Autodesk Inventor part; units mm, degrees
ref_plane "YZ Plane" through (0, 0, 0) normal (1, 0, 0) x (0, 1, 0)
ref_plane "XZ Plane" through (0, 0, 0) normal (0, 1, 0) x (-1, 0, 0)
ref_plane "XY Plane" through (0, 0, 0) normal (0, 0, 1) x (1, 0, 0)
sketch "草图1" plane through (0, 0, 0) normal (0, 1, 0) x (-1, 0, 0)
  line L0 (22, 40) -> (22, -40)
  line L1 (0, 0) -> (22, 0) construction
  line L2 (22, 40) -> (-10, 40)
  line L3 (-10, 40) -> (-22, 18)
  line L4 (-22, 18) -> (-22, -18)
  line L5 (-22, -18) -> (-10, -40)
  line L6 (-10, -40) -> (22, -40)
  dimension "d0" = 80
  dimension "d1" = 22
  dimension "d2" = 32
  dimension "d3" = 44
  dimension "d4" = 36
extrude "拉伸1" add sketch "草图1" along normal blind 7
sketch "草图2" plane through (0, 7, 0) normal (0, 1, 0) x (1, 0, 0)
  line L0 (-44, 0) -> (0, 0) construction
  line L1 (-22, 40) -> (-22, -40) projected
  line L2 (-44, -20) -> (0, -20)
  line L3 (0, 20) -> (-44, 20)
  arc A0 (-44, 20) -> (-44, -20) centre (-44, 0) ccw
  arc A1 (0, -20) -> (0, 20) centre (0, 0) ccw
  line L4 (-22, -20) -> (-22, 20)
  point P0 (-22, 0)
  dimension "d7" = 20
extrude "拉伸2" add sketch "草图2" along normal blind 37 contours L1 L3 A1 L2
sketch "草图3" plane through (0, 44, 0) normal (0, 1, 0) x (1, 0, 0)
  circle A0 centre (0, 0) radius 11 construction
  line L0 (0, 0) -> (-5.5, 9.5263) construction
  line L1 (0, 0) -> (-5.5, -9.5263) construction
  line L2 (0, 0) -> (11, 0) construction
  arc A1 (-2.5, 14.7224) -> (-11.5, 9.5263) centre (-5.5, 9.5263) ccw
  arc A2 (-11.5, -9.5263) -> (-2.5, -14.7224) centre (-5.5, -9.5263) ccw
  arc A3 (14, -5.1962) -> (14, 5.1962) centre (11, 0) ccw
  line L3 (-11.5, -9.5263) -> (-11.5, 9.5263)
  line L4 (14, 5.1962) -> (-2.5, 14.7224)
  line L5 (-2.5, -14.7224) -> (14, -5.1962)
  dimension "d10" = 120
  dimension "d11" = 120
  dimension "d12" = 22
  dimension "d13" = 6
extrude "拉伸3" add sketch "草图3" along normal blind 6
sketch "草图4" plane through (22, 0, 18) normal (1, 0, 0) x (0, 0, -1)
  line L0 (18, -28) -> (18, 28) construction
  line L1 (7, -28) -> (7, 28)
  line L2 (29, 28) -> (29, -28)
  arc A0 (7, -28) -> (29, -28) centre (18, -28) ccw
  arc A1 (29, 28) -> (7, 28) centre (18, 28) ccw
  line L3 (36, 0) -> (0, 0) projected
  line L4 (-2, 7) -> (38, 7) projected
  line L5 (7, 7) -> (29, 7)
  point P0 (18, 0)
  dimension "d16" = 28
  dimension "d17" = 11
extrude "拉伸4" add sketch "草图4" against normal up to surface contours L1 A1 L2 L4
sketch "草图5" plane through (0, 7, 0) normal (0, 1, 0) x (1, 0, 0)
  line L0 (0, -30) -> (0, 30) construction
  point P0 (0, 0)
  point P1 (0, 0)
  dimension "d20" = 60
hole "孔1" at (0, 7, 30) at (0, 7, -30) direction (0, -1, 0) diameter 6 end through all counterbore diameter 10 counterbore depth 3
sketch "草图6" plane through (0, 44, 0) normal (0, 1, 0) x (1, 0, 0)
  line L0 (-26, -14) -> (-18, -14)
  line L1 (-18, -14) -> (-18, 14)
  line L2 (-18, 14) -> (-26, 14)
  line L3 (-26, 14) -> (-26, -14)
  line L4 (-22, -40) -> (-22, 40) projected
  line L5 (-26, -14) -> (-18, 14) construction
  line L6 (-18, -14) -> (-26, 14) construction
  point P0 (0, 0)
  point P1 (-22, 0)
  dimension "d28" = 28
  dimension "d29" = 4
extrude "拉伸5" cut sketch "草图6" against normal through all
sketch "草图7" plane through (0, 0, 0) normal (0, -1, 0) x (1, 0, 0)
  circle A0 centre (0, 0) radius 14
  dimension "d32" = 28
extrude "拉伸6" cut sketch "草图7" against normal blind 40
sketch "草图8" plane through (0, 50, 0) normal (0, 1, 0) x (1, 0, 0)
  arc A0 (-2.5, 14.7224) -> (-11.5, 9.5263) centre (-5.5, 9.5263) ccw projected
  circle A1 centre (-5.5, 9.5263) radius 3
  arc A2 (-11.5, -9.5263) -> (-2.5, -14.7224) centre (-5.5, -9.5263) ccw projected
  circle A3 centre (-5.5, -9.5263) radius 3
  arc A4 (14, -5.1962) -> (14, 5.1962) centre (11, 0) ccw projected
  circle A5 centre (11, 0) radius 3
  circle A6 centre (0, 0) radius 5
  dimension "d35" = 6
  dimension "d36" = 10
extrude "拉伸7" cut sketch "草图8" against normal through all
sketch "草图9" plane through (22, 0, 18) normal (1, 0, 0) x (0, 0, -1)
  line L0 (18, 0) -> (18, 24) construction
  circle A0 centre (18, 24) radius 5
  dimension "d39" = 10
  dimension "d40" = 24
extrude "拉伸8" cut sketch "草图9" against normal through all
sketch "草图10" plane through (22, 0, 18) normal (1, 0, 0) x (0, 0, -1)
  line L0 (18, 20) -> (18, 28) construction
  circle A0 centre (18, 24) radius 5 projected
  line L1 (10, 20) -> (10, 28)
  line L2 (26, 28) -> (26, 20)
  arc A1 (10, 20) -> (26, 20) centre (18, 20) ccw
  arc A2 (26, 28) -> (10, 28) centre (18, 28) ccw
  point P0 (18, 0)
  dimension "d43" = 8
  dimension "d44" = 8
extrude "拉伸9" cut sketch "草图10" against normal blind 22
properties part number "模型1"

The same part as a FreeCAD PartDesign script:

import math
import FreeCAD as App
import Part
import Sketcher
Q = App.Units.Quantity

doc = App.newDocument("Part")
body = doc.addObject("PartDesign::Body", "Body")

# Sketch on XZ plane
sketch1 = doc.addObject("Sketcher::SketchObject", "Sketch")
body.addObject(sketch1)
sketch1.AttachmentSupport = (doc.XZ_Plane, [""])
sketch1.MapMode = "FlatFace"
sketch1.addGeometry([
    Part.LineSegment(App.Vector(-22, -40, 0), App.Vector(-22, 40, 0)),  # 0
    Part.LineSegment(App.Vector(-22, 40, 0), App.Vector(10, 40, 0)),  # 1
    Part.LineSegment(App.Vector(10, 40, 0), App.Vector(22, 18, 0)),  # 2
    Part.LineSegment(App.Vector(22, 18, 0), App.Vector(22, -18, 0)),  # 3
    Part.LineSegment(App.Vector(22, -18, 0), App.Vector(10, -40, 0)),  # 4
    Part.LineSegment(App.Vector(10, -40, 0), App.Vector(-22, -40, 0)),  # 5
], False)
sketch1.addConstraint([
    Sketcher.Constraint("Coincident", 0, 2, 1, 1),
    Sketcher.Constraint("Coincident", 1, 2, 2, 1),
    Sketcher.Constraint("Coincident", 2, 2, 3, 1),
    Sketcher.Constraint("Coincident", 3, 2, 4, 1),
    Sketcher.Constraint("Coincident", 4, 2, 5, 1),
    Sketcher.Constraint("Coincident", 5, 2, 0, 1),
    Sketcher.Constraint("Vertical", 0),
    Sketcher.Constraint("Horizontal", 1),
    Sketcher.Constraint("Vertical", 3),
    Sketcher.Constraint("Horizontal", 5),
    Sketcher.Constraint("Symmetric", 1, 2, 4, 2, -1),
    Sketcher.Constraint("Equal", 2, 4),
    Sketcher.Constraint("DistanceX", 1, 1, 1, 2, 32.0),
    Sketcher.Constraint("DistanceY", 0, 1, 0, 2, 80.0),
    Sketcher.Constraint("DistanceY", 3, 2, 3, 1, 36.0),
    Sketcher.Constraint("DistanceX", 0, 2, -1, 1, 22.0),
    Sketcher.Constraint("DistanceX", -1, 1, 2, 2, 22.0),
])
pad1 = doc.addObject("PartDesign::Pad", "Pad")
body.addObject(pad1)
pad1.Profile = sketch1
pad1.Length = 7
pad1.Reversed = True

# Sketch on XZ plane
sketch2 = doc.addObject("Sketcher::SketchObject", "Sketch001")
body.addObject(sketch2)
sketch2.AttachmentSupport = (doc.XZ_Plane, [""])
sketch2.MapMode = "FlatFace"
sketch2.AttachmentOffset = App.Placement(App.Vector(0, 0, -7), App.Rotation())
sketch2.addGeometry([
    Part.LineSegment(App.Vector(-22, -20, 0), App.Vector(-22, 20, 0)),
    Part.LineSegment(App.Vector(-22, 20, 0), App.Vector(0, 20, 0)),
    Part.ArcOfCircle(Part.Circle(App.Vector(0, 0, 0), App.Vector(0, 0, 1), 20), math.radians(-90), math.radians(90)),
    Part.LineSegment(App.Vector(0, -20, 0), App.Vector(-22, -20, 0)),
], False)
sketch2.addConstraint([
    Sketcher.Constraint("Coincident", 0, 2, 1, 1),
    Sketcher.Constraint("Tangent", 1, 2, 2, 2),
    Sketcher.Constraint("Tangent", 2, 1, 3, 1),
    Sketcher.Constraint("Coincident", 3, 2, 0, 1),
    Sketcher.Constraint("Vertical", 0),
    Sketcher.Constraint("Horizontal", 1),
    Sketcher.Constraint("Horizontal", 3),
    Sketcher.Constraint("Coincident", 2, 3, -1, 1),
    Sketcher.Constraint("Radius", 2, 20.0),
    Sketcher.Constraint("DistanceX", 1, 1, 1, 2, 22.0),
])
pad2 = doc.addObject("PartDesign::Pad", "Pad001")
body.addObject(pad2)
pad2.Profile = sketch2
pad2.Length = 37
pad2.Reversed = True

# Sketch on XZ plane
sketch3 = doc.addObject("Sketcher::SketchObject", "Sketch002")
body.addObject(sketch3)
sketch3.AttachmentSupport = (doc.XZ_Plane, [""])
sketch3.MapMode = "FlatFace"
sketch3.AttachmentOffset = App.Placement(App.Vector(0, 0, -44), App.Rotation())
sketch3.addGeometry([
    Part.LineSegment(App.Vector(14, -5, 0), App.Vector(-2, -15, 0)),  # 0
    Part.ArcOfCircle(Part.Circle(App.Vector(-6, -10, 0), App.Vector(0, 0, 1), 6), math.radians(180), math.radians(300)),  # 1
    Part.LineSegment(App.Vector(-12, -10, 0), App.Vector(-12, 10, 0)),  # 2
    Part.ArcOfCircle(Part.Circle(App.Vector(-6, 10, 0), App.Vector(0, 0, 1), 6), math.radians(60), math.radians(180)),  # 3
    Part.LineSegment(App.Vector(-2, 15, 0), App.Vector(14, 5, 0)),  # 4
    Part.ArcOfCircle(Part.Circle(App.Vector(11, 0, 0), App.Vector(0, 0, 1), 6), math.radians(-60), math.radians(60)),  # 5
], False)
sketch3.addConstraint([
    Sketcher.Constraint("Tangent", 0, 2, 1, 2),
    Sketcher.Constraint("Tangent", 1, 1, 2, 1),
    Sketcher.Constraint("Tangent", 2, 2, 3, 2),
    Sketcher.Constraint("Tangent", 3, 1, 4, 1),
    Sketcher.Constraint("Tangent", 4, 2, 5, 2),
    Sketcher.Constraint("Tangent", 5, 1, 0, 1),
    Sketcher.Constraint("Vertical", 2),
    Sketcher.Constraint("Equal", 1, 3),
    Sketcher.Constraint("Equal", 3, 5),
    Sketcher.Constraint("Symmetric", 0, 2, 3, 1, -1),
    Sketcher.Constraint("Radius", 1, 6.0),
    Sketcher.Constraint("Angle", 0, Q("-150.0002 deg")),
    Sketcher.Constraint("DistanceX", -1, 1, 5, 3, 11.0),
    Sketcher.Constraint("DistanceX", 1, 3, -1, 1, 5.5),
])
pad3 = doc.addObject("PartDesign::Pad", "Pad002")
body.addObject(pad3)
pad3.Profile = sketch3
pad3.Length = 6
pad3.Reversed = True

# Sketch on YZ plane
sketch4 = doc.addObject("Sketcher::SketchObject", "Sketch003")
body.addObject(sketch4)
sketch4.AttachmentSupport = (doc.YZ_Plane, [""])
sketch4.MapMode = "FlatFace"
sketch4.AttachmentOffset = App.Placement(App.Vector(0, 0, 22), App.Rotation())
sketch4.addGeometry([
    Part.LineSegment(App.Vector(28, 11, 0), App.Vector(7, 11, 0)),
    Part.LineSegment(App.Vector(7, 11, 0), App.Vector(7, -11, 0)),
    Part.LineSegment(App.Vector(7, -11, 0), App.Vector(28, -11, 0)),
    Part.ArcOfCircle(Part.Circle(App.Vector(28, 0, 0), App.Vector(0, 0, 1), 11), math.radians(-90), math.radians(90)),
], False)
sketch4.addConstraint([
    Sketcher.Constraint("Coincident", 0, 2, 1, 1),
    Sketcher.Constraint("Coincident", 1, 2, 2, 1),
    Sketcher.Constraint("Tangent", 2, 2, 3, 1),
    Sketcher.Constraint("Tangent", 3, 2, 0, 1),
    Sketcher.Constraint("Horizontal", 0),
    Sketcher.Constraint("Vertical", 1),
    Sketcher.Constraint("Horizontal", 2),
    Sketcher.Constraint("PointOnObject", 3, 3, -1),
    Sketcher.Constraint("Radius", 3, 11.0),
    Sketcher.Constraint("DistanceX", -1, 1, 3, 3, 28.0),
    Sketcher.Constraint("DistanceX", 0, 2, 0, 1, 21.0),
])
pad4 = doc.addObject("PartDesign::Pad", "Pad003")
body.addObject(pad4)
pad4.Profile = sketch4
pad4.Type = "UpToFirst"
pad4.Reversed = True

# Sketch on XZ plane
sketch5 = doc.addObject("Sketcher::SketchObject", "Sketch004")
body.addObject(sketch5)
sketch5.AttachmentSupport = (doc.XZ_Plane, [""])
sketch5.MapMode = "FlatFace"
sketch5.AttachmentOffset = App.Placement(App.Vector(0, 0, -7), App.Rotation())
sketch5.addGeometry([
    Part.Circle(App.Vector(0, 30, 0), App.Vector(0, 0, 1), 3),
    Part.Circle(App.Vector(0, -30, 0), App.Vector(0, 0, 1), 3),
], False)
sketch5.addConstraint([
    Sketcher.Constraint("Equal", 0, 1),
    Sketcher.Constraint("Symmetric", 0, 3, 1, 3, -1, 1),
    Sketcher.Constraint("PointOnObject", 0, 3, -2),
    Sketcher.Constraint("Diameter", 0, 6.0),
    Sketcher.Constraint("DistanceY", -1, 1, 0, 3, 30.0),
])
doc.recompute()
hole = doc.addObject("PartDesign::Hole", "Hole")
body.addObject(hole)
hole.Profile = sketch5
hole.ThreadType = "None"
hole.Diameter = 6
hole.DepthType = "ThroughAll"
hole.HoleCutType = "Counterbore"
hole.HoleCutDiameter = 10
hole.HoleCutDepth = 3
hole.Reversed = True

# Sketch on XZ plane
sketch6 = doc.addObject("Sketcher::SketchObject", "Sketch005")
body.addObject(sketch6)
sketch6.AttachmentSupport = (doc.XZ_Plane, [""])
sketch6.MapMode = "FlatFace"
sketch6.AttachmentOffset = App.Placement(App.Vector(0, 0, -44), App.Rotation())
sketch6.addGeometry([
    Part.LineSegment(App.Vector(-26, -14, 0), App.Vector(-26, 14, 0)),
    Part.LineSegment(App.Vector(-26, 14, 0), App.Vector(-18, 14, 0)),
    Part.LineSegment(App.Vector(-18, 14, 0), App.Vector(-18, -14, 0)),
    Part.LineSegment(App.Vector(-18, -14, 0), App.Vector(-26, -14, 0)),
], False)
sketch6.addConstraint([
    Sketcher.Constraint("Coincident", 0, 2, 1, 1),
    Sketcher.Constraint("Coincident", 1, 2, 2, 1),
    Sketcher.Constraint("Coincident", 2, 2, 3, 1),
    Sketcher.Constraint("Coincident", 3, 2, 0, 1),
    Sketcher.Constraint("Vertical", 0),
    Sketcher.Constraint("Horizontal", 1),
    Sketcher.Constraint("Vertical", 2),
    Sketcher.Constraint("Horizontal", 3),
    Sketcher.Constraint("DistanceY", 0, 1, 0, 2, 28.0),
    Sketcher.Constraint("DistanceX", 1, 1, 1, 2, 8.0),
    Sketcher.Constraint("DistanceX", 0, 2, -1, 1, 26.0),
    Sketcher.Constraint("DistanceY", -1, 1, 0, 2, 14.0),
])
pocket1 = doc.addObject("PartDesign::Pocket", "Pocket")
body.addObject(pocket1)
pocket1.Profile = sketch6
pocket1.Type = "ThroughAll"
pocket1.Reversed = True

# Sketch on XZ plane
sketch7 = doc.addObject("Sketcher::SketchObject", "Sketch006")
body.addObject(sketch7)
sketch7.AttachmentSupport = (doc.XZ_Plane, [""])
sketch7.MapMode = "FlatFace"
sketch7.addGeometry(Part.Circle(App.Vector(0, 0, 0), App.Vector(0, 0, 1), 14), False)
sketch7.addConstraint([
    Sketcher.Constraint("Coincident", 0, 3, -1, 1),
    Sketcher.Constraint("Diameter", 0, 28.0),
])
pocket2 = doc.addObject("PartDesign::Pocket", "Pocket001")
body.addObject(pocket2)
pocket2.Profile = sketch7
pocket2.Length = 40

# Sketch on XZ plane
sketch8 = doc.addObject("Sketcher::SketchObject", "Sketch007")
body.addObject(sketch8)
sketch8.AttachmentSupport = (doc.XZ_Plane, [""])
sketch8.MapMode = "FlatFace"
sketch8.AttachmentOffset = App.Placement(App.Vector(0, 0, -50), App.Rotation())
sketch8.addGeometry([
    Part.Circle(App.Vector(-5.5, -9.5, 0), App.Vector(0, 0, 1), 3),
    Part.Circle(App.Vector(-5.5, 9.5, 0), App.Vector(0, 0, 1), 3),
    Part.Circle(App.Vector(11, 0, 0), App.Vector(0, 0, 1), 3),
    Part.Circle(App.Vector(0, 0, 0), App.Vector(0, 0, 1), 5),
], False)
sketch8.addConstraint([
    Sketcher.Constraint("Coincident", 3, 3, -1, 1),
    Sketcher.Constraint("Equal", 0, 1),
    Sketcher.Constraint("Equal", 1, 2),
    Sketcher.Constraint("Symmetric", 0, 3, 1, 3, -1),
    Sketcher.Constraint("PointOnObject", 2, 3, -1),
    Sketcher.Constraint("Diameter", 0, 6.0),
    Sketcher.Constraint("Diameter", 3, 10.0),
    Sketcher.Constraint("DistanceX", -1, 1, 2, 3, 11.0),
    Sketcher.Constraint("DistanceX", 0, 3, -1, 1, 5.5),
    Sketcher.Constraint("DistanceY", 0, 3, -1, 1, 9.5263),
])
pocket3 = doc.addObject("PartDesign::Pocket", "Pocket002")
body.addObject(pocket3)
pocket3.Profile = sketch8
pocket3.Type = "ThroughAll"
pocket3.Reversed = True

# Sketch on YZ plane
sketch9 = doc.addObject("Sketcher::SketchObject", "Sketch008")
body.addObject(sketch9)
sketch9.AttachmentSupport = (doc.YZ_Plane, [""])
sketch9.MapMode = "FlatFace"
sketch9.AttachmentOffset = App.Placement(App.Vector(0, 0, 22), App.Rotation())
sketch9.addGeometry(Part.Circle(App.Vector(24, 0, 0), App.Vector(0, 0, 1), 5), False)
sketch9.addConstraint([
    Sketcher.Constraint("PointOnObject", 0, 3, -1),
    Sketcher.Constraint("Diameter", 0, 10.0),
    Sketcher.Constraint("DistanceX", -1, 1, 0, 3, 24.0),
])
pocket4 = doc.addObject("PartDesign::Pocket", "Pocket003")
body.addObject(pocket4)
pocket4.Profile = sketch9
pocket4.Type = "ThroughAll"

# Sketch on YZ plane
sketch10 = doc.addObject("Sketcher::SketchObject", "Sketch009")
body.addObject(sketch10)
sketch10.AttachmentSupport = (doc.YZ_Plane, [""])
sketch10.MapMode = "FlatFace"
sketch10.AttachmentOffset = App.Placement(App.Vector(0, 0, 22), App.Rotation())
sketch10.addGeometry([
    Part.LineSegment(App.Vector(28, 8, 0), App.Vector(20, 8, 0)),  # 0
    Part.ArcOfCircle(Part.Circle(App.Vector(20, 0, 0), App.Vector(0, 0, 1), 8), math.radians(90), math.radians(270)),  # 1
    Part.LineSegment(App.Vector(20, -8, 0), App.Vector(28, -8, 0)),  # 2
    Part.ArcOfCircle(Part.Circle(App.Vector(28, 0, 0), App.Vector(0, 0, 1), 8), math.radians(-90), math.radians(90)),  # 3
    Part.Circle(App.Vector(24, 0, 0), App.Vector(0, 0, 1), 5),  # 4
], False)
sketch10.addConstraint([
    Sketcher.Constraint("Tangent", 0, 2, 1, 1),
    Sketcher.Constraint("Tangent", 1, 2, 2, 1),
    Sketcher.Constraint("Tangent", 2, 2, 3, 1),
    Sketcher.Constraint("Tangent", 3, 2, 0, 1),
    Sketcher.Constraint("Horizontal", 0),
    Sketcher.Constraint("Horizontal", 2),
    Sketcher.Constraint("PointOnObject", 1, 3, -1),
    Sketcher.Constraint("PointOnObject", 4, 3, -1),
    Sketcher.Constraint("Radius", 1, 8.0),
    Sketcher.Constraint("DistanceX", 0, 2, 0, 1, 8.0),
    Sketcher.Constraint("Diameter", 4, 10.0),
    Sketcher.Constraint("DistanceX", -1, 1, 1, 3, 20.0),
    Sketcher.Constraint("DistanceX", -1, 1, 4, 3, 24.0),
])
pocket5 = doc.addObject("PartDesign::Pocket", "Pocket004")
body.addObject(pocket5)
pocket5.Profile = sketch10
pocket5.Length = 22

doc.recompute()
